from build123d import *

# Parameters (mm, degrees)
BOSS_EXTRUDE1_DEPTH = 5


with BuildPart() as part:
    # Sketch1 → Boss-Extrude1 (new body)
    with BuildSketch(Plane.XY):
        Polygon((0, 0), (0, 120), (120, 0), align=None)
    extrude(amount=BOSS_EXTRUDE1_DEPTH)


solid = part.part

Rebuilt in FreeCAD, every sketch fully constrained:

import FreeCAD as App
import Part
import Sketcher
Q = App.Units.Quantity

doc = App.newDocument("Part")
body = doc.addObject("PartDesign::Body", "Body")

sketch1 = body.newObject("Sketcher::SketchObject", "Sketch")
sketch1.AttachmentSupport = (doc.getObject("XY_Plane"), [""])
sketch1.MapMode = "FlatFace"
sketch1.addGeometry([
    Part.LineSegment(App.Vector(0, 120, 0), App.Vector(0, 0, 0)),
    Part.LineSegment(App.Vector(0, 0, 0), App.Vector(120, 0, 0)),
    Part.LineSegment(App.Vector(120, 0, 0), App.Vector(0, 120, 0)),
], False)
sketch1.addConstraint([
    Sketcher.Constraint("Coincident", 0, 2, 1, 1),
    Sketcher.Constraint("Coincident", 1, 2, 2, 1),
    Sketcher.Constraint("Coincident", 2, 2, 0, 1),
    Sketcher.Constraint("Vertical", 0),
    Sketcher.Constraint("Horizontal", 1),
    Sketcher.Constraint("Coincident", 0, 2, -1, 1),
    Sketcher.Constraint("Equal", 1, 0),
    Sketcher.Constraint("DistanceX", 1, 1, 1, 2, Q("120 mm")),
])
pad1 = body.newObject("PartDesign::Pad", "Pad")
pad1.Profile = sketch1
pad1.Length = 5

doc.recompute()
